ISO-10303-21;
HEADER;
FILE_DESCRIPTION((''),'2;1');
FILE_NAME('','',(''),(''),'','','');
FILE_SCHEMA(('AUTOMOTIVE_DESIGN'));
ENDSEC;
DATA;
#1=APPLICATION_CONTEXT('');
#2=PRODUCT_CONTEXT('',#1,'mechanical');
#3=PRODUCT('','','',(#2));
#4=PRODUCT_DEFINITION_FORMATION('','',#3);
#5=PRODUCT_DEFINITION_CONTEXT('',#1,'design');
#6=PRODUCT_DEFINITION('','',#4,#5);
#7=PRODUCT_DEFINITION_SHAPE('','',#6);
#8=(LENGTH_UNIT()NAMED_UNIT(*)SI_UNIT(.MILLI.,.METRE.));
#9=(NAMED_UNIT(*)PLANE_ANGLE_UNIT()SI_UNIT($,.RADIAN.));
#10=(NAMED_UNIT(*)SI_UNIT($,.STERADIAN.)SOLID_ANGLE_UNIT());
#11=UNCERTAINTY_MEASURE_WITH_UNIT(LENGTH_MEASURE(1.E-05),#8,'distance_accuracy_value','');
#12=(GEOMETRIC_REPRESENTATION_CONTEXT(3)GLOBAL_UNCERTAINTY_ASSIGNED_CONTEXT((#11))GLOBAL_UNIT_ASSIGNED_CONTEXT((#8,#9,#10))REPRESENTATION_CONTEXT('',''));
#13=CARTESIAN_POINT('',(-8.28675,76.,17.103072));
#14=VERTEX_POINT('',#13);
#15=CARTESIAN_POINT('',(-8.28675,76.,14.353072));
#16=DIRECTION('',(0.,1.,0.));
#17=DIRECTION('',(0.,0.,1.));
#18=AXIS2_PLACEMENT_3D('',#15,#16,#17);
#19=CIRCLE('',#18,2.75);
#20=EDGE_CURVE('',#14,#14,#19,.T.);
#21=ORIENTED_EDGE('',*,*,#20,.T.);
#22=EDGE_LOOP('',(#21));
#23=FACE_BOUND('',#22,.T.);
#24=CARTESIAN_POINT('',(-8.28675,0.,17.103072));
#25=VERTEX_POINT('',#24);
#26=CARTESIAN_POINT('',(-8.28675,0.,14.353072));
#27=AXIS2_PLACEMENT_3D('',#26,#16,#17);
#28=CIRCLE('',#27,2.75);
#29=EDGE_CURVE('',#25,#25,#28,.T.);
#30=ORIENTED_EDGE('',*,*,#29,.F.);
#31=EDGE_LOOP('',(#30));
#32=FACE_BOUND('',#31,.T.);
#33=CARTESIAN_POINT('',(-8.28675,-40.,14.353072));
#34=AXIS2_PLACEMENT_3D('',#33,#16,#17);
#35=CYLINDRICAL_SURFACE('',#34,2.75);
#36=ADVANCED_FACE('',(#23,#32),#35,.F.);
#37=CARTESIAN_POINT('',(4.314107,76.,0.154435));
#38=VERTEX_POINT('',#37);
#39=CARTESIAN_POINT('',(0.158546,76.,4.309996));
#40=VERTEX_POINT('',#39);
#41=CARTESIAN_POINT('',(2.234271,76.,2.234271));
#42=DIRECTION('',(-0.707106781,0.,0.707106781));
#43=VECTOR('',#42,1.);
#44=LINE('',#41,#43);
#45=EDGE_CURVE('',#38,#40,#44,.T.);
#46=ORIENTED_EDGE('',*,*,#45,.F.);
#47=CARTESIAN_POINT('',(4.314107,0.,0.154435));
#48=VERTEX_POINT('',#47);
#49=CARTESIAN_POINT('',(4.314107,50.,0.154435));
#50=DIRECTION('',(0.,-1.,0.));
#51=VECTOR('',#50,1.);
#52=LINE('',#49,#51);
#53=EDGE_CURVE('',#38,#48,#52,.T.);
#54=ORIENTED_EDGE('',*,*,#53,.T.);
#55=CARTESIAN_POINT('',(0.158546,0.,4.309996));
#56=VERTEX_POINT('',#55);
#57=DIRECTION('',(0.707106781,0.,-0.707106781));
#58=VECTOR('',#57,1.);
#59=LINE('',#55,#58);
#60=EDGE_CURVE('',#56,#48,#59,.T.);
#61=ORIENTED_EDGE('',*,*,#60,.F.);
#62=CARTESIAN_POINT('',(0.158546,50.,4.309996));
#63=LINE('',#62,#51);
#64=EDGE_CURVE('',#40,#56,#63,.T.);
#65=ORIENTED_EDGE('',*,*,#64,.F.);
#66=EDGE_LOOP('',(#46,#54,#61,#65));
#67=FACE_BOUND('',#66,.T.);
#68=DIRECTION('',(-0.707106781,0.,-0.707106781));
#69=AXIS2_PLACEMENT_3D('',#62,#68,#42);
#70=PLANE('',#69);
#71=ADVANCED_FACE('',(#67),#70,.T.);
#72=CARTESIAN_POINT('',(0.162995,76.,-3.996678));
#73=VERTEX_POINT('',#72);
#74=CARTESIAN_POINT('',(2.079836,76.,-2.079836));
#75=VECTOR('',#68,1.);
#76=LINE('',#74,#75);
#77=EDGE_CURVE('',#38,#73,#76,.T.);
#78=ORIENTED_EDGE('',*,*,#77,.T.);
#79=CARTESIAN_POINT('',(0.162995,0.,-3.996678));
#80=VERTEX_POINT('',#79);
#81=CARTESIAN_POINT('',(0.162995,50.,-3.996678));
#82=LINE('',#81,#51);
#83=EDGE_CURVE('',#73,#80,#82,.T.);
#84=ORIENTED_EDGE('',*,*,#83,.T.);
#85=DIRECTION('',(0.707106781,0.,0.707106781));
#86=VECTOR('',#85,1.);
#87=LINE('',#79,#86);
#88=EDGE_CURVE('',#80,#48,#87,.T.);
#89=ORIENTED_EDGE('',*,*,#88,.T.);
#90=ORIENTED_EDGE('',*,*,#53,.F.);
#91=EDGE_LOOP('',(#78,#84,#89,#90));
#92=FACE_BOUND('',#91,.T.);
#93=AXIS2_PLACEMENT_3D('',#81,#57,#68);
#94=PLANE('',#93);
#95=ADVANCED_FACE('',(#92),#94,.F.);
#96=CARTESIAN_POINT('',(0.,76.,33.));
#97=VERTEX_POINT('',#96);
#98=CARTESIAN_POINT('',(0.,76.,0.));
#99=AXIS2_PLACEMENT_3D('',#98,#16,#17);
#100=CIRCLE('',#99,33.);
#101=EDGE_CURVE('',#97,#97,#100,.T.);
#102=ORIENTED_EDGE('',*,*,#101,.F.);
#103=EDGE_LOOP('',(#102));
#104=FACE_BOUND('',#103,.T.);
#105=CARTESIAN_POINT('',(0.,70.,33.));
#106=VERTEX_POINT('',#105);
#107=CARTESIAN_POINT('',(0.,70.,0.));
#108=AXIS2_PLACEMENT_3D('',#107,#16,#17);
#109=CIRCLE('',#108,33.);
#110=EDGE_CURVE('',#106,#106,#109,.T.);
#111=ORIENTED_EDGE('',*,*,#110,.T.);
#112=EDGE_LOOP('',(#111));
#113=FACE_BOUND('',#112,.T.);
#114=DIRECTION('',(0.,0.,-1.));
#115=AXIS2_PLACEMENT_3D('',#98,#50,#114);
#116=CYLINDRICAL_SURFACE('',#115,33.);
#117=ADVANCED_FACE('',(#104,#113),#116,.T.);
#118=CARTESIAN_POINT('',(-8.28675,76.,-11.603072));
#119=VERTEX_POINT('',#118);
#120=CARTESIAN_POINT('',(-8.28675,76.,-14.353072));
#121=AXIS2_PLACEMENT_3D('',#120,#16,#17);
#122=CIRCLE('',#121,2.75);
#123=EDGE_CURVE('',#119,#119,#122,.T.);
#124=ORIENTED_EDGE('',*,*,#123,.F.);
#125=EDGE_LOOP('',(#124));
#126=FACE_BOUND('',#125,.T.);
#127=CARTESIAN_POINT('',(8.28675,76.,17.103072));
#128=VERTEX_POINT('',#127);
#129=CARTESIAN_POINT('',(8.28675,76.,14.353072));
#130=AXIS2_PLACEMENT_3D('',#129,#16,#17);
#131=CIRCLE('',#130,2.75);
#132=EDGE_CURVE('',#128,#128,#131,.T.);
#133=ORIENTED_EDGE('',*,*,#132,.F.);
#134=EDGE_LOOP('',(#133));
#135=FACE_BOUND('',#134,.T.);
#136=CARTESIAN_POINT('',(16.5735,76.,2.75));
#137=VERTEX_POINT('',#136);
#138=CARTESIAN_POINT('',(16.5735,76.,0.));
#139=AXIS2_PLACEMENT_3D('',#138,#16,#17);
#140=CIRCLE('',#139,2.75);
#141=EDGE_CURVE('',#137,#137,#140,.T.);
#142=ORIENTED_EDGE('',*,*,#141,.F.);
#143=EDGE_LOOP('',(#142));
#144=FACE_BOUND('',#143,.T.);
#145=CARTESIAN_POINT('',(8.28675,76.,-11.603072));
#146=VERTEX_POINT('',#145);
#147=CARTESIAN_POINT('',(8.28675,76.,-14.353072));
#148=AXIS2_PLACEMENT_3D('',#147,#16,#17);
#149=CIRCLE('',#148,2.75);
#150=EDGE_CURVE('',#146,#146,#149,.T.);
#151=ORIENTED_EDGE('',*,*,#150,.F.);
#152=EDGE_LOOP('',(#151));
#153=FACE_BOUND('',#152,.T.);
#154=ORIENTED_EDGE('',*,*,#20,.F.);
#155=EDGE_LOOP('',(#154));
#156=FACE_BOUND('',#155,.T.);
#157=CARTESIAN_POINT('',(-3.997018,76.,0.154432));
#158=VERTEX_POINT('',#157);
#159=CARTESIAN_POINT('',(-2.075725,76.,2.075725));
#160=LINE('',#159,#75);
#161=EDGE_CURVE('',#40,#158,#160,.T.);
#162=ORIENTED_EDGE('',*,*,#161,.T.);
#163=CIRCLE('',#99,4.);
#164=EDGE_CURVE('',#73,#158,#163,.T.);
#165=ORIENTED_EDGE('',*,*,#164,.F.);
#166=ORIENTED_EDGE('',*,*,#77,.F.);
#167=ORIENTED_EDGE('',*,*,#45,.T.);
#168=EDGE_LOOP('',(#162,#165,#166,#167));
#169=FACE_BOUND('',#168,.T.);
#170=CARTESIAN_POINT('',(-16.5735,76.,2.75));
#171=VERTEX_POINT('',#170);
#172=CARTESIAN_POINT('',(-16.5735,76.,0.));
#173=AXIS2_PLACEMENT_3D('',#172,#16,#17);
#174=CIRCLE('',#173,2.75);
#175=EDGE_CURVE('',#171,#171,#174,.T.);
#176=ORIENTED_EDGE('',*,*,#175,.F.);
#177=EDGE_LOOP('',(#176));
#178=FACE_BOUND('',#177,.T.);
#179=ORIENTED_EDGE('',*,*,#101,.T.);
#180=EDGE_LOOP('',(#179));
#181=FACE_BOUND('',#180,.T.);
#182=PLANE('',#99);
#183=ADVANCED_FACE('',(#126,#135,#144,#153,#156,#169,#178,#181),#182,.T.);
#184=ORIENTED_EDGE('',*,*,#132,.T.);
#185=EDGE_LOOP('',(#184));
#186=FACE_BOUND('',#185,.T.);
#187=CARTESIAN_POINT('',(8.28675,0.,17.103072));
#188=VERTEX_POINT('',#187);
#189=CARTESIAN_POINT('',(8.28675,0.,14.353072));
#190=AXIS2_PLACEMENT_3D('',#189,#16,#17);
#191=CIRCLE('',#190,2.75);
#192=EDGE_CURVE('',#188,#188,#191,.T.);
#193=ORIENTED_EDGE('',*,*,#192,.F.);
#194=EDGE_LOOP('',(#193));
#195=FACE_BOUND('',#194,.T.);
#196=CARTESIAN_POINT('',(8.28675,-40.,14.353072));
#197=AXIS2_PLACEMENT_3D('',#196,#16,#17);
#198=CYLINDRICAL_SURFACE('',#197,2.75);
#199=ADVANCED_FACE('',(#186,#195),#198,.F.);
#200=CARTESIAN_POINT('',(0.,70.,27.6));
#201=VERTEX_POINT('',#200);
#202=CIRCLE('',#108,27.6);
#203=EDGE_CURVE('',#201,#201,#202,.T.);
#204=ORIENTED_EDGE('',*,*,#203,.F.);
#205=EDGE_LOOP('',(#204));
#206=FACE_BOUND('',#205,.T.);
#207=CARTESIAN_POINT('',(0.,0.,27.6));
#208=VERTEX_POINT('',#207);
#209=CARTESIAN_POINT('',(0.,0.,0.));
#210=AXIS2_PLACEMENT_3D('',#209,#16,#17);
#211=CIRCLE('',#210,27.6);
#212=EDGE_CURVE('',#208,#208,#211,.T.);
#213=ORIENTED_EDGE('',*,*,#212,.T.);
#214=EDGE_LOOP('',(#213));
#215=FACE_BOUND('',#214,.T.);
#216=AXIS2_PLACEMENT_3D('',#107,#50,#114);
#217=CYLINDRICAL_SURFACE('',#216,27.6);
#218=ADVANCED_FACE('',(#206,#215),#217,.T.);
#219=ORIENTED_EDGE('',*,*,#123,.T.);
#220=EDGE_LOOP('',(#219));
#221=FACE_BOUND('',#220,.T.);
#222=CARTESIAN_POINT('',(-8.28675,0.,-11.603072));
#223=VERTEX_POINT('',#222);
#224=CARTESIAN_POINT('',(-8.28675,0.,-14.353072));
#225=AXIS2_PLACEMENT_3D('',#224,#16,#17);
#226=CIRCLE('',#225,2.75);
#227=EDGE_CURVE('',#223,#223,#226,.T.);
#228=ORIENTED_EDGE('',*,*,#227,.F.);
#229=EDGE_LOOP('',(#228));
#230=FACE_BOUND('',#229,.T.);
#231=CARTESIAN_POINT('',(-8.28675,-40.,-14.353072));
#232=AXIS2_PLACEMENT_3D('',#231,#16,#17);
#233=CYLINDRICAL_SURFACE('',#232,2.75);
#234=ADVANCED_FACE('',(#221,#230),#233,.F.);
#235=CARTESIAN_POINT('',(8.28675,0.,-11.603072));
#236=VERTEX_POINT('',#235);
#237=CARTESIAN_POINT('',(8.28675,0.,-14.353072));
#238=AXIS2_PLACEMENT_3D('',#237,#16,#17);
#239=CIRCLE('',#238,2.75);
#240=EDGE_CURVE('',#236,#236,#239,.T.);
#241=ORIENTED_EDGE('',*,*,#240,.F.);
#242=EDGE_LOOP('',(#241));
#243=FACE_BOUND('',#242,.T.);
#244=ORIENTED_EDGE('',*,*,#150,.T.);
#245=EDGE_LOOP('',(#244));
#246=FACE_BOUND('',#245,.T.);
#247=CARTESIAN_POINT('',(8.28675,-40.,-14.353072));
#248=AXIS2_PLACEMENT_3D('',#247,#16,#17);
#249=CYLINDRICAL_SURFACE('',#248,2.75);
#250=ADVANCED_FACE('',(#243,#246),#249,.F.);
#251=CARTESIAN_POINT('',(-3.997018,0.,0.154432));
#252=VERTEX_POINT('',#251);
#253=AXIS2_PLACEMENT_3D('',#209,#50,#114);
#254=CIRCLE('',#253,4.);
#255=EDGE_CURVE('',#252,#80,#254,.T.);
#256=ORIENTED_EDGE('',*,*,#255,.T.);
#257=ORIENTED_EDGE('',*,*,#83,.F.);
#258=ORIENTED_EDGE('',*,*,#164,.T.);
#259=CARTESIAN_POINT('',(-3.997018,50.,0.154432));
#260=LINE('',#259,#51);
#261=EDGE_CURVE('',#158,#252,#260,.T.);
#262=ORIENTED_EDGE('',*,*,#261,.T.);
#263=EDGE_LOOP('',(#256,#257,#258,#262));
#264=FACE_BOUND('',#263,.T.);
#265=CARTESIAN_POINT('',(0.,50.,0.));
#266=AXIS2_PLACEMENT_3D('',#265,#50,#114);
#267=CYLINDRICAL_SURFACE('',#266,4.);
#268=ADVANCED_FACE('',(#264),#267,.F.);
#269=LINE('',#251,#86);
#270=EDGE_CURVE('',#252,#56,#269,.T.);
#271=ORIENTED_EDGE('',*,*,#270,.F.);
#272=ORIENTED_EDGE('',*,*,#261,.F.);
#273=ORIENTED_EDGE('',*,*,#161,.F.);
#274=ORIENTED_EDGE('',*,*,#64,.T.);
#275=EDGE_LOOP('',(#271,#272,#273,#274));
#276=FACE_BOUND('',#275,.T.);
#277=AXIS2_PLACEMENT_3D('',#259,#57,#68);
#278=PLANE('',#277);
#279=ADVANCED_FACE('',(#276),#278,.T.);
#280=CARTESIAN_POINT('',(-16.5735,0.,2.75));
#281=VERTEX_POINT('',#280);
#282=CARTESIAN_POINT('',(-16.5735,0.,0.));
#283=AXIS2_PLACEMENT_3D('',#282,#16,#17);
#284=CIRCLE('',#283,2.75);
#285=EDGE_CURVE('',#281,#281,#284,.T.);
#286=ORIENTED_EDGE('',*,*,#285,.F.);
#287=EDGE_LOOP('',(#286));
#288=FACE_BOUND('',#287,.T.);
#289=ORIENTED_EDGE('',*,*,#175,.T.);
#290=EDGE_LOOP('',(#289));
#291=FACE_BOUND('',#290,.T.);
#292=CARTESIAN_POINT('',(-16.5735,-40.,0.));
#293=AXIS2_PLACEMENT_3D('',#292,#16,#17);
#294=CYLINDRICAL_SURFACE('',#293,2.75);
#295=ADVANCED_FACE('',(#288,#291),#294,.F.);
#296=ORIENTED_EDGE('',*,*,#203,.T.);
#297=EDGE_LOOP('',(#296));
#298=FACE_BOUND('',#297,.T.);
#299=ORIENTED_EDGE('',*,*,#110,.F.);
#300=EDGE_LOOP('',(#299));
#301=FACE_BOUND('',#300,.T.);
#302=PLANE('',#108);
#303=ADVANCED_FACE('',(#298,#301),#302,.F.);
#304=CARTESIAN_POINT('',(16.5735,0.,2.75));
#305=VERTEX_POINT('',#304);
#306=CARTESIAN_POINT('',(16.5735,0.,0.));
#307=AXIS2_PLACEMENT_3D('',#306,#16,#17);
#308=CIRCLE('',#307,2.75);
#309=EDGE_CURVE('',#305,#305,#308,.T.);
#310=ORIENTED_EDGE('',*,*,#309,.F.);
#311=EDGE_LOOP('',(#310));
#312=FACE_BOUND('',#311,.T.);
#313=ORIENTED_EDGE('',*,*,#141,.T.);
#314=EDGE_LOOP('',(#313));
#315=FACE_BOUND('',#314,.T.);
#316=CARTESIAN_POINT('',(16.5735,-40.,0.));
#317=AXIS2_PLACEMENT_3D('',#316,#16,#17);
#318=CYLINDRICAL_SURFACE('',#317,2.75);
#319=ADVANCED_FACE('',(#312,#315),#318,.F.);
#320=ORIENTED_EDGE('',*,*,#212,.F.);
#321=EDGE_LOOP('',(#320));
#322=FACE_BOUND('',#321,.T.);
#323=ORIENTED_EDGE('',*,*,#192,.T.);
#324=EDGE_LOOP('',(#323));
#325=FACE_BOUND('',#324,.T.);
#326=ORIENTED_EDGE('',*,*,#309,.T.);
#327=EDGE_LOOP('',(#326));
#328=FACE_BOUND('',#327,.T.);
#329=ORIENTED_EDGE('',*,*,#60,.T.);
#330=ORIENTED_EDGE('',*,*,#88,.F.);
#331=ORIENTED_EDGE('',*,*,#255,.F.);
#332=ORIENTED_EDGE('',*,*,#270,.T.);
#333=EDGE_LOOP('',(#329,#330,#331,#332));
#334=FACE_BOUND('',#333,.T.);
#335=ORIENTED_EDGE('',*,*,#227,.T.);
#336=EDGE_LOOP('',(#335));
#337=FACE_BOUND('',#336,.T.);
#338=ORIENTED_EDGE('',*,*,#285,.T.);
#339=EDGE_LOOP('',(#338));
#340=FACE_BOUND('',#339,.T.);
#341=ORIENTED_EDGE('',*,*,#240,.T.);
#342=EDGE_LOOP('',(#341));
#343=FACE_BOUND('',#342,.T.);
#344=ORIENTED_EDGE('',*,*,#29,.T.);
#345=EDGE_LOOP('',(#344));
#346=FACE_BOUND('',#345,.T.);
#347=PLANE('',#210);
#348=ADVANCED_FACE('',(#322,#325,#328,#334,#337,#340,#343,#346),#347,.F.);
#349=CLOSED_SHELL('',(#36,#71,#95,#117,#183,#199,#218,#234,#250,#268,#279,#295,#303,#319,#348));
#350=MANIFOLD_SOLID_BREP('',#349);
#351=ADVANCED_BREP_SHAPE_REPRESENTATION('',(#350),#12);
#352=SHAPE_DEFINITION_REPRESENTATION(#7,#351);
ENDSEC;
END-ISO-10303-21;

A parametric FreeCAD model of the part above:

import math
import FreeCAD as App
import Part
import Sketcher
from FreeCAD import Vector
Q = App.Units.Quantity

doc = App.newDocument("Part")
params = doc.addObject("Spreadsheet::Sheet", "Params")
for row, (alias, value) in enumerate([
    ("sketch1_diameter", "55.2 mm"),
    ("pad1_length", "70 mm"),
    ("sketch2_radius", "4 mm"),
    ("pocket1_length", "50 mm"),
    ("sketch3_diameter", "5.5 mm"),
    ("pocket2_length", "110 mm"),
    ("sketch4_diameter", "66 mm"),
    ("pad2_length", "6 mm"),
    ("sketch5_diameter", "5.5 mm"),
    ("pocket3_length", "6 mm"),
    ("sketch6_radius", "4 mm"),
    ("pocket4_length", "81 mm"),
], start=1):
    params.set(f"A{row}", alias)
    params.set(f"B{row}", "=" + value)
    params.setAlias(f"B{row}", alias)

body = doc.addObject("PartDesign::Body", "Body")

# Sketch on XZ plane
sketch1 = doc.addObject("Sketcher::SketchObject", "Sketch")
body.addObject(sketch1)
sketch1.AttachmentSupport = (doc.XZ_Plane, [""])
sketch1.MapMode = "FlatFace"
sketch1.addGeometry(Part.Circle(Vector(0, 0, 0), Vector(0, 0, 1), 28), False)
sketch1.addConstraint(Sketcher.Constraint("Coincident", 0, 3, -1, 1))
sketch1.addConstraint(Sketcher.Constraint("Diameter", 0, 55.2))
sketch1.setExpression("Constraints[1]", "Params.sketch1_diameter")
pad1 = doc.addObject("PartDesign::Pad", "Pad")
body.addObject(pad1)
pad1.Profile = sketch1
pad1.setExpression("Length", "Params.pad1_length")
pad1.Reversed = True

# Sketch on XZ plane
sketch2 = doc.addObject("Sketcher::SketchObject", "Sketch001")
body.addObject(sketch2)
sketch2.AttachmentSupport = (doc.XZ_Plane, [""])
sketch2.MapMode = "FlatFace"
sketch2.addGeometry(Part.LineSegment(Vector(-4, 0.2, 0), Vector(0.2, 4.3, 0)), False)
sketch2.addGeometry(Part.LineSegment(Vector(0.2, 4.3, 0), Vector(4.3, 0.2, 0)), False)
sketch2.addGeometry(Part.LineSegment(Vector(4.3, 0.2, 0), Vector(0.2, -4, 0)), False)
sketch2.addGeometry(Part.ArcOfCircle(Part.Circle(Vector(0, 0, 0), Vector(0, 0, 1), 4), math.radians(178), math.radians(272)), False)
sketch2.addConstraint(Sketcher.Constraint("Coincident", 0, 2, 1, 1))
sketch2.addConstraint(Sketcher.Constraint("Coincident", 1, 2, 2, 1))
sketch2.addConstraint(Sketcher.Constraint("Coincident", 2, 2, 3, 2))
sketch2.addConstraint(Sketcher.Constraint("Coincident", 3, 1, 0, 1))
sketch2.addConstraint(Sketcher.Constraint("Coincident", 3, 3, -1, 1))
sketch2.addConstraint(Sketcher.Constraint("Perpendicular", 0, 1))
sketch2.addConstraint(Sketcher.Constraint("Perpendicular", 1, 2))
sketch2.addConstraint(Sketcher.Constraint("Radius", 3, 4.0))
sketch2.addConstraint(Sketcher.Constraint("Angle", 0, Q("45 deg")))
sketch2.addConstraint(Sketcher.Constraint("Distance", 1, 5.876851))
sketch2.addConstraint(Sketcher.Constraint("Distance", 2, 5.870559))
sketch2.addConstraint(Sketcher.Constraint("DistanceY", 2, 2, 3, 1, 4.15111))
sketch2.setExpression("Constraints[7]", "Params.sketch2_radius")
pocket1 = doc.addObject("PartDesign::Pocket", "Pocket")
body.addObject(pocket1)
pocket1.Profile = sketch2
pocket1.setExpression("Length", "Params.pocket1_length")

# Sketch on XZ plane
sketch3 = doc.addObject("Sketcher::SketchObject", "Sketch002")
body.addObject(sketch3)
sketch3.AttachmentSupport = (doc.XZ_Plane, [""])
sketch3.MapMode = "FlatFace"
sketch3.AttachmentOffset = App.Placement(Vector(0, 0, -70), App.Rotation())
sketch3.addGeometry(Part.Circle(Vector(-8.3, -14.4, 0), Vector(0, 0, 1), 2.8), False)
sketch3.addGeometry(Part.Circle(Vector(-16.6, 0, 0), Vector(0, 0, 1), 2.8), False)
sketch3.addGeometry(Part.Circle(Vector(-8.3, 14.4, 0), Vector(0, 0, 1), 2.8), False)
sketch3.addGeometry(Part.Circle(Vector(8.3, 14.4, 0), Vector(0, 0, 1), 2.8), False)
sketch3.addGeometry(Part.Circle(Vector(16.6, 0, 0), Vector(0, 0, 1), 2.8), False)
sketch3.addGeometry(Part.Circle(Vector(8.3, -14.4, 0), Vector(0, 0, 1), 2.8), False)
sketch3.addConstraint(Sketcher.Constraint("Equal", 0, 1))
sketch3.addConstraint(Sketcher.Constraint("Equal", 1, 2))
sketch3.addConstraint(Sketcher.Constraint("Equal", 2, 3))
sketch3.addConstraint(Sketcher.Constraint("Equal", 3, 4))
sketch3.addConstraint(Sketcher.Constraint("Equal", 4, 5))
sketch3.addConstraint(Sketcher.Constraint("Symmetric", 0, 3, 3, 3, -1, 1))
sketch3.addConstraint(Sketcher.Constraint("Symmetric", 1, 3, 4, 3, -1, 1))
sketch3.addConstraint(Sketcher.Constraint("Symmetric", 2, 3, 5, 3, -1, 1))
sketch3.addConstraint(Sketcher.Constraint("Symmetric", 2, 3, 3, 3, -2))
sketch3.addConstraint(Sketcher.Constraint("PointOnObject", 1, 3, -1))
sketch3.addConstraint(Sketcher.Constraint("Diameter", 0, 5.5))
sketch3.addConstraint(Sketcher.Constraint("DistanceX", 1, 3, 4, 3, 33.147))
sketch3.addConstraint(Sketcher.Constraint("DistanceX", 2, 3, 3, 3, 16.5735))
sketch3.addConstraint(Sketcher.Constraint("DistanceY", 0, 3, -1, 1, 14.353072))
sketch3.setExpression("Constraints[10]", "Params.sketch3_diameter")
pocket2 = doc.addObject("PartDesign::Pocket", "Pocket001")
body.addObject(pocket2)
pocket2.Profile = sketch3
pocket2.setExpression("Length", "Params.pocket2_length")
pocket2.Reversed = True

# Sketch on XZ plane
sketch4 = doc.addObject("Sketcher::SketchObject", "Sketch003")
body.addObject(sketch4)
sketch4.AttachmentSupport = (doc.XZ_Plane, [""])
sketch4.MapMode = "FlatFace"
sketch4.AttachmentOffset = App.Placement(Vector(0, 0, -70), App.Rotation())
sketch4.addGeometry(Part.Circle(Vector(0, 0, 0), Vector(0, 0, 1), 33), False)
sketch4.addConstraint(Sketcher.Constraint("Coincident", 0, 3, -1, 1))
sketch4.addConstraint(Sketcher.Constraint("Diameter", 0, 66.0))
sketch4.setExpression("Constraints[1]", "Params.sketch4_diameter")
pad2 = doc.addObject("PartDesign::Pad", "Pad001")
body.addObject(pad2)
pad2.Profile = sketch4
pad2.setExpression("Length", "Params.pad2_length")
pad2.Reversed = True

# Sketch on XZ plane
sketch5 = doc.addObject("Sketcher::SketchObject", "Sketch004")
body.addObject(sketch5)
sketch5.AttachmentSupport = (doc.XZ_Plane, [""])
sketch5.MapMode = "FlatFace"
sketch5.AttachmentOffset = App.Placement(Vector(0, 0, -76), App.Rotation())
sketch5.addGeometry(Part.Circle(Vector(-8.3, -14.4, 0), Vector(0, 0, 1), 2.8), False)
sketch5.addGeometry(Part.Circle(Vector(-16.6, 0, 0), Vector(0, 0, 1), 2.8), False)
sketch5.addGeometry(Part.Circle(Vector(-8.3, 14.4, 0), Vector(0, 0, 1), 2.8), False)
sketch5.addGeometry(Part.Circle(Vector(8.3, 14.4, 0), Vector(0, 0, 1), 2.8), False)
sketch5.addGeometry(Part.Circle(Vector(16.6, 0, 0), Vector(0, 0, 1), 2.8), False)
sketch5.addGeometry(Part.Circle(Vector(8.3, -14.4, 0), Vector(0, 0, 1), 2.8), False)
sketch5.addConstraint(Sketcher.Constraint("Equal", 0, 1))
sketch5.addConstraint(Sketcher.Constraint("Equal", 1, 2))
sketch5.addConstraint(Sketcher.Constraint("Equal", 2, 3))
sketch5.addConstraint(Sketcher.Constraint("Equal", 3, 4))
sketch5.addConstraint(Sketcher.Constraint("Equal", 4, 5))
sketch5.addConstraint(Sketcher.Constraint("Symmetric", 0, 3, 3, 3, -1, 1))
sketch5.addConstraint(Sketcher.Constraint("Symmetric", 1, 3, 4, 3, -1, 1))
sketch5.addConstraint(Sketcher.Constraint("Symmetric", 2, 3, 5, 3, -1, 1))
sketch5.addConstraint(Sketcher.Constraint("Symmetric", 2, 3, 3, 3, -2))
sketch5.addConstraint(Sketcher.Constraint("PointOnObject", 1, 3, -1))
sketch5.addConstraint(Sketcher.Constraint("Diameter", 0, 5.5))
sketch5.addConstraint(Sketcher.Constraint("DistanceX", 1, 3, 4, 3, 33.147))
sketch5.addConstraint(Sketcher.Constraint("DistanceX", 2, 3, 3, 3, 16.5735))
sketch5.addConstraint(Sketcher.Constraint("DistanceY", 0, 3, -1, 1, 14.353072))
sketch5.setExpression("Constraints[10]", "Params.sketch5_diameter")
pocket3 = doc.addObject("PartDesign::Pocket", "Pocket002")
body.addObject(pocket3)
pocket3.Profile = sketch5
pocket3.setExpression("Length", "Params.pocket3_length")
pocket3.Reversed = True

# Sketch on XZ plane
sketch6 = doc.addObject("Sketcher::SketchObject", "Sketch005")
body.addObject(sketch6)
sketch6.AttachmentSupport = (doc.XZ_Plane, [""])
sketch6.MapMode = "FlatFace"
sketch6.addGeometry(Part.LineSegment(Vector(-4, 0.2, 0), Vector(0.2, 4.3, 0)), False)
sketch6.addGeometry(Part.LineSegment(Vector(0.2, 4.3, 0), Vector(4.3, 0.2, 0)), False)
sketch6.addGeometry(Part.LineSegment(Vector(4.3, 0.2, 0), Vector(0.2, -4, 0)), False)
sketch6.addGeometry(Part.ArcOfCircle(Part.Circle(Vector(0, 0, 0), Vector(0, 0, 1), 4), math.radians(178), math.radians(272)), False)
sketch6.addConstraint(Sketcher.Constraint("Coincident", 0, 2, 1, 1))
sketch6.addConstraint(Sketcher.Constraint("Coincident", 1, 2, 2, 1))
sketch6.addConstraint(Sketcher.Constraint("Coincident", 2, 2, 3, 2))
sketch6.addConstraint(Sketcher.Constraint("Coincident", 3, 1, 0, 1))
sketch6.addConstraint(Sketcher.Constraint("Coincident", 3, 3, -1, 1))
sketch6.addConstraint(Sketcher.Constraint("Perpendicular", 0, 1))
sketch6.addConstraint(Sketcher.Constraint("Perpendicular", 1, 2))
sketch6.addConstraint(Sketcher.Constraint("Radius", 3, 4.0))
sketch6.addConstraint(Sketcher.Constraint("Angle", 0, Q("45 deg")))
sketch6.addConstraint(Sketcher.Constraint("Distance", 1, 5.876851))
sketch6.addConstraint(Sketcher.Constraint("Distance", 2, 5.870559))
sketch6.addConstraint(Sketcher.Constraint("DistanceY", 2, 2, 3, 1, 4.15111))
sketch6.setExpression("Constraints[7]", "Params.sketch6_radius")
pocket4 = doc.addObject("PartDesign::Pocket", "Pocket003")
body.addObject(pocket4)
pocket4.Profile = sketch6
pocket4.setExpression("Length", "Params.pocket4_length")

doc.recompute()
